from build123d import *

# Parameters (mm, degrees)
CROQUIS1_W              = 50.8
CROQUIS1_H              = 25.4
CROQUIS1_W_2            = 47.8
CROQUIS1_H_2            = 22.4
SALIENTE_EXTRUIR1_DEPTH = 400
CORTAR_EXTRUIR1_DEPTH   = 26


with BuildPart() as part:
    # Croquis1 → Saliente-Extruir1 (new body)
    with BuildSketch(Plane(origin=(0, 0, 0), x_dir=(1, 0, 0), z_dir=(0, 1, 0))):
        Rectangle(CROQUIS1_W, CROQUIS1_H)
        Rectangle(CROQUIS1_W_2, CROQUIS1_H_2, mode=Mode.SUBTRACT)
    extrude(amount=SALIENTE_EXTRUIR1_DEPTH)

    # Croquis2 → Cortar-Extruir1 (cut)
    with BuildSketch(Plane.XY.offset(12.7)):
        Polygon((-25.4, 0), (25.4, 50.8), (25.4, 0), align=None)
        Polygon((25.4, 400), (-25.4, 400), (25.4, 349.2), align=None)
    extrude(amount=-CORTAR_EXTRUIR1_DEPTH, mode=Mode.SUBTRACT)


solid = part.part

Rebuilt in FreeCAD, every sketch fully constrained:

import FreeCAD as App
import Part
import Sketcher
from FreeCAD import Vector
Q = App.Units.Quantity


def add_polygon(sketch, points):
    """Adds a closed chain of lines whose ends are joined by coincident constraints."""
    first, n = sketch.GeometryCount, len(points)
    for a, b in zip(points, points[1:] + points[:1]):
        sketch.addGeometry(Part.LineSegment(App.Vector(*a, 0), App.Vector(*b, 0)), False)
    for i in range(n):
        sketch.addConstraint(Sketcher.Constraint("Coincident", first + i, 2, first + (i + 1) % n, 1))

doc = App.newDocument("Part")
body = doc.addObject("PartDesign::Body", "Body")

# Sketch on XZ plane
sketch1 = doc.addObject("Sketcher::SketchObject", "Sketch")
body.addObject(sketch1)
sketch1.AttachmentSupport = (doc.XZ_Plane, [""])
sketch1.MapMode = "FlatFace"
add_polygon(sketch1, [(-25, -13), (-25, 13), (25, 13), (25, -13)])  # lines 0-3
add_polygon(sketch1, [(24, 11), (-24, 11), (-24, -11), (24, -11)])  # lines 4-7
sketch1.addConstraint(Sketcher.Constraint("Vertical", 0))
sketch1.addConstraint(Sketcher.Constraint("Horizontal", 1))
sketch1.addConstraint(Sketcher.Constraint("Vertical", 2))
sketch1.addConstraint(Sketcher.Constraint("Horizontal", 3))
sketch1.addConstraint(Sketcher.Constraint("Horizontal", 4))
sketch1.addConstraint(Sketcher.Constraint("Vertical", 5))
sketch1.addConstraint(Sketcher.Constraint("Horizontal", 6))
sketch1.addConstraint(Sketcher.Constraint("Vertical", 7))
sketch1.addConstraint(Sketcher.Constraint("Symmetric", 0, 2, 2, 2, -1, 1))
sketch1.addConstraint(Sketcher.Constraint("Symmetric", 4, 2, 6, 2, -1, 1))
sketch1.addConstraint(Sketcher.Constraint("DistanceX", 1, 1, 1, 2, Q("50.8 mm")))
sketch1.addConstraint(Sketcher.Constraint("DistanceX", 4, 2, 4, 1, Q("47.8 mm")))
sketch1.addConstraint(Sketcher.Constraint("DistanceY", 0, 1, 0, 2, Q("25.4 mm")))
sketch1.addConstraint(Sketcher.Constraint("DistanceY", 5, 2, 5, 1, Q("22.4 mm")))
pad1 = doc.addObject("PartDesign::Pad", "Pad")
body.addObject(pad1)
pad1.Profile = sketch1
pad1.Length = 400
pad1.Reversed = True

# Sketch on XY plane
sketch2 = doc.addObject("Sketcher::SketchObject", "Sketch001")
body.addObject(sketch2)
sketch2.AttachmentSupport = (doc.XY_Plane, [""])
sketch2.MapMode = "FlatFace"
sketch2.AttachmentOffset = App.Placement(Vector(0, 0, 12.7), App.Rotation())
add_polygon(sketch2, [(25, 51), (-25, 0), (25, 0)])  # lines 0-2
add_polygon(sketch2, [(25, 400), (-25, 400), (25, 349)])  # lines 3-5
sketch2.addConstraint(Sketcher.Constraint("Horizontal", 1))
sketch2.addConstraint(Sketcher.Constraint("Vertical", 2))
sketch2.addConstraint(Sketcher.Constraint("Horizontal", 3))
sketch2.addConstraint(Sketcher.Constraint("Vertical", 5))
sketch2.addConstraint(Sketcher.Constraint("Symmetric", 0, 2, 1, 2, -1, 1))
sketch2.addConstraint(Sketcher.Constraint("Perpendicular", 0, 4))
sketch2.addConstraint(Sketcher.Constraint("Vertical", 0, 2, 3, 2))
sketch2.addConstraint(Sketcher.Constraint("Vertical", 2, 2, 4, 2))
sketch2.addConstraint(Sketcher.Constraint("Equal", 3, 2))
sketch2.addConstraint(Sketcher.Constraint("DistanceX", 1, 1, 1, 2, Q("50.8 mm")))
sketch2.addConstraint(Sketcher.Constraint("DistanceY", -1, 1, 3, 2, Q("400 mm")))
pocket1 = doc.addObject("PartDesign::Pocket", "Pocket")
body.addObject(pocket1)
pocket1.Profile = sketch2
pocket1.Length = 26

doc.recompute()
